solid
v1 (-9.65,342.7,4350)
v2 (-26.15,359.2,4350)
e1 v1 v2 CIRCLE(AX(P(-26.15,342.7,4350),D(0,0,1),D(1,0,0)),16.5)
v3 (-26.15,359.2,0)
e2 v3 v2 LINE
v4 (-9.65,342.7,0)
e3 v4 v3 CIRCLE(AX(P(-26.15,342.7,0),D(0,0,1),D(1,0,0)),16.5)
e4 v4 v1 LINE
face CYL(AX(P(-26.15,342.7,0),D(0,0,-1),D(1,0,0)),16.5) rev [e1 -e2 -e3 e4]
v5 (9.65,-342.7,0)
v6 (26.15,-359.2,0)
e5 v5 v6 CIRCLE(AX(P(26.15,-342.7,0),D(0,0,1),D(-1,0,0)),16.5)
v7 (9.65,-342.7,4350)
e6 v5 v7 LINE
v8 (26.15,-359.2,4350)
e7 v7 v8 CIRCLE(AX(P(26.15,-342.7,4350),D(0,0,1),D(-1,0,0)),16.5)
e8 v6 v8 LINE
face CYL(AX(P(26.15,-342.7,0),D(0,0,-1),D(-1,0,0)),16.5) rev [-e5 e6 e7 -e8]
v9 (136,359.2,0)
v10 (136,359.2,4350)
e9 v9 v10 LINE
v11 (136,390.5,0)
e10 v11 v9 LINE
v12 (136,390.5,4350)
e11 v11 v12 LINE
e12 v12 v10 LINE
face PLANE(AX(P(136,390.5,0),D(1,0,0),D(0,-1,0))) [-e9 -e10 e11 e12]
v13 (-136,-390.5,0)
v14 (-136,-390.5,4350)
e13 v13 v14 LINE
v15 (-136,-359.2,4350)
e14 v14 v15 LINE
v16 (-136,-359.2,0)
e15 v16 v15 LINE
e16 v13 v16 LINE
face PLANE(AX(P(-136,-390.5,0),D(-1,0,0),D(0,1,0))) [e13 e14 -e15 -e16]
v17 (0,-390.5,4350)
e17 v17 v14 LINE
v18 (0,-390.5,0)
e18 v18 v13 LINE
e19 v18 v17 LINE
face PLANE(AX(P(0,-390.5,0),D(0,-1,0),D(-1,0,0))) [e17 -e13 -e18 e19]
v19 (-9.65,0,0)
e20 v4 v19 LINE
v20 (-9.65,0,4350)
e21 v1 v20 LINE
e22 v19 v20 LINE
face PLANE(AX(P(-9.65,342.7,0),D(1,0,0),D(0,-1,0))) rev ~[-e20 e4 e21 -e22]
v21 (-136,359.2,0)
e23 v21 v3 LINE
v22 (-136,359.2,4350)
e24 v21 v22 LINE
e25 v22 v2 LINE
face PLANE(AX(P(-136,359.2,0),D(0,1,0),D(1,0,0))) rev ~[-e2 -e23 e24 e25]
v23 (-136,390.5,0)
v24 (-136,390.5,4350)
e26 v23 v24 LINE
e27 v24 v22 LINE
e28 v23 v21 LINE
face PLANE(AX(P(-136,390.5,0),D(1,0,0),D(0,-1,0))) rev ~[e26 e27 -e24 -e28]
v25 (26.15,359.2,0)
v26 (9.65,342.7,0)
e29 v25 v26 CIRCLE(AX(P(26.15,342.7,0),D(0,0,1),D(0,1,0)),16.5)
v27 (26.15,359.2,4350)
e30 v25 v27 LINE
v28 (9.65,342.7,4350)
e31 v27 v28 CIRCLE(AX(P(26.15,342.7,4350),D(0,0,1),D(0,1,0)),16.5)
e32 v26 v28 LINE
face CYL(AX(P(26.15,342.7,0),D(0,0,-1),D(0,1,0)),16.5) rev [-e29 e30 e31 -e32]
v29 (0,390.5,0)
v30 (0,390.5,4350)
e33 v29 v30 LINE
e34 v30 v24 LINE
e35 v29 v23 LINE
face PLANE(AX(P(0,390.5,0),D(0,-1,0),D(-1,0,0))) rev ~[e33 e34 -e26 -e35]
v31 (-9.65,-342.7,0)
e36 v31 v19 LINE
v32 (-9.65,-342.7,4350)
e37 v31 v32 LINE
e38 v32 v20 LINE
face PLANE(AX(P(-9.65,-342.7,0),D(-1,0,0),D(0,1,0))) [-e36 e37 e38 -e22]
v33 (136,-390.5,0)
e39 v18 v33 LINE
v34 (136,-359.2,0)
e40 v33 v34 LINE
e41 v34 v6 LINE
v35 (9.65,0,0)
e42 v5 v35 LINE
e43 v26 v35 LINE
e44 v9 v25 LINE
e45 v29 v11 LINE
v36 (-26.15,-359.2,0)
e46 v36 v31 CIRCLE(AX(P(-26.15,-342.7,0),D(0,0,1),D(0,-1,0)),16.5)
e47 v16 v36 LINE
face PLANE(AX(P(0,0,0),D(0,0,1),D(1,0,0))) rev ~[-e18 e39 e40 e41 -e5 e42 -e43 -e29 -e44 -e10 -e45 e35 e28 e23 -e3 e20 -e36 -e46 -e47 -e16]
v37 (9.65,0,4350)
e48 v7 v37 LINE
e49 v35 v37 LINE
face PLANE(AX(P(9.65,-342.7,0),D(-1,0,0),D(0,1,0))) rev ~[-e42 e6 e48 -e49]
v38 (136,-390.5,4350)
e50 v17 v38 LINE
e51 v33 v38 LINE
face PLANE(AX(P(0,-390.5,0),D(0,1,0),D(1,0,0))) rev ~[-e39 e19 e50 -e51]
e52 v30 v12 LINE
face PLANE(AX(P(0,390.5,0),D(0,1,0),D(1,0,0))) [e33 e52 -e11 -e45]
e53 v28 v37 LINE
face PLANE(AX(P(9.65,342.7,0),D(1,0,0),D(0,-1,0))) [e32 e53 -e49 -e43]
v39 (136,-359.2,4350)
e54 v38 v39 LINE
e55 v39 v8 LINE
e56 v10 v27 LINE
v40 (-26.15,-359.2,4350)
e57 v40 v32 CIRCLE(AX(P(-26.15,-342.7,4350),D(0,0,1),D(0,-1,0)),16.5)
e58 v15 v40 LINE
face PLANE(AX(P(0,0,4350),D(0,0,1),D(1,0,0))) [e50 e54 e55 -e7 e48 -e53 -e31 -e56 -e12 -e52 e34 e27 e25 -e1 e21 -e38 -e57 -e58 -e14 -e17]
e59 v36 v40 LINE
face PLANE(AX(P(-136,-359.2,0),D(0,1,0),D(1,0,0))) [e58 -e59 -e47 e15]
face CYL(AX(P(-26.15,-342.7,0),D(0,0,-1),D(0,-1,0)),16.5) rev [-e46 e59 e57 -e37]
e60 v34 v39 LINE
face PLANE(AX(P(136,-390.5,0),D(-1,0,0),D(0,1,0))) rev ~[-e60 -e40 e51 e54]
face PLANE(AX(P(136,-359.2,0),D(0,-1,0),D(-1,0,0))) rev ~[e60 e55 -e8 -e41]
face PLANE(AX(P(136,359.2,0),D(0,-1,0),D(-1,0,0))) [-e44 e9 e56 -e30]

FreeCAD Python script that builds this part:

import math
import FreeCAD as App
import Part
import Sketcher
from FreeCAD import Vector
Q = App.Units.Quantity

doc = App.newDocument("Part")
body = doc.addObject("PartDesign::Body", "Body")

sketch1 = doc.addObject("Sketcher::SketchObject", "Sketch")
body.addObject(sketch1)
sketch1.AttachmentSupport = (doc.XY_Plane, [""])
sketch1.MapMode = "FlatFace"
sketch1.addGeometry(Part.LineSegment(Vector(-136, -359, 0), Vector(-136, -390, 0)), False)
sketch1.addGeometry(Part.LineSegment(Vector(-136, -390, 0), Vector(136, -390, 0)), False)
sketch1.addGeometry(Part.LineSegment(Vector(136, -390, 0), Vector(136, -359, 0)), False)
sketch1.addGeometry(Part.LineSegment(Vector(136, -359, 0), Vector(26, -359, 0)), False)
sketch1.addGeometry(Part.ArcOfCircle(Part.Circle(Vector(26, -343, 0), Vector(0, 0, 1), 16), math.radians(180), math.radians(270)), False)
sketch1.addGeometry(Part.LineSegment(Vector(10, -343, 0), Vector(10, 343, 0)), False)
sketch1.addGeometry(Part.ArcOfCircle(Part.Circle(Vector(26, 343, 0), Vector(0, 0, 1), 16), math.radians(90), math.radians(180)), False)
sketch1.addGeometry(Part.LineSegment(Vector(26, 359, 0), Vector(136, 359, 0)), False)
sketch1.addGeometry(Part.LineSegment(Vector(136, 359, 0), Vector(136, 390, 0)), False)
sketch1.addGeometry(Part.LineSegment(Vector(136, 390, 0), Vector(-136, 390, 0)), False)
sketch1.addGeometry(Part.LineSegment(Vector(-136, 390, 0), Vector(-136, 359, 0)), False)
sketch1.addGeometry(Part.LineSegment(Vector(-136, 359, 0), Vector(-26, 359, 0)), False)
sketch1.addGeometry(Part.ArcOfCircle(Part.Circle(Vector(-26, 343, 0), Vector(0, 0, 1), 16), math.radians(0), math.radians(90)), False)
sketch1.addGeometry(Part.LineSegment(Vector(-10, 343, 0), Vector(-10, -343, 0)), False)
sketch1.addGeometry(Part.ArcOfCircle(Part.Circle(Vector(-26, -343, 0), Vector(0, 0, 1), 16), math.radians(-90), math.radians(0)), False)
sketch1.addGeometry(Part.LineSegment(Vector(-26, -359, 0), Vector(-136, -359, 0)), False)
sketch1.addConstraint(Sketcher.Constraint("Coincident", 0, 2, 1, 1))
sketch1.addConstraint(Sketcher.Constraint("Coincident", 1, 2, 2, 1))
sketch1.addConstraint(Sketcher.Constraint("Coincident", 2, 2, 3, 1))
sketch1.addConstraint(Sketcher.Constraint("Tangent", 3, 2, 4, 2))
sketch1.addConstraint(Sketcher.Constraint("Tangent", 4, 1, 5, 1))
sketch1.addConstraint(Sketcher.Constraint("Tangent", 5, 2, 6, 2))
sketch1.addConstraint(Sketcher.Constraint("Tangent", 6, 1, 7, 1))
sketch1.addConstraint(Sketcher.Constraint("Coincident", 7, 2, 8, 1))
sketch1.addConstraint(Sketcher.Constraint("Coincident", 8, 2, 9, 1))
sketch1.addConstraint(Sketcher.Constraint("Coincident", 9, 2, 10, 1))
sketch1.addConstraint(Sketcher.Constraint("Coincident", 10, 2, 11, 1))
sketch1.addConstraint(Sketcher.Constraint("Tangent", 11, 2, 12, 2))
sketch1.addConstraint(Sketcher.Constraint("Tangent", 12, 1, 13, 1))
sketch1.addConstraint(Sketcher.Constraint("Tangent", 13, 2, 14, 2))
sketch1.addConstraint(Sketcher.Constraint("Tangent", 14, 1, 15, 1))
sketch1.addConstraint(Sketcher.Constraint("Coincident", 15, 2, 0, 1))
sketch1.addConstraint(Sketcher.Constraint("Vertical", 0))
sketch1.addConstraint(Sketcher.Constraint("Horizontal", 1))
sketch1.addConstraint(Sketcher.Constraint("Vertical", 2))
sketch1.addConstraint(Sketcher.Constraint("Horizontal", 3))
sketch1.addConstraint(Sketcher.Constraint("Vertical", 5))
sketch1.addConstraint(Sketcher.Constraint("Horizontal", 7))
sketch1.addConstraint(Sketcher.Constraint("Vertical", 8))
sketch1.addConstraint(Sketcher.Constraint("Horizontal", 9))
sketch1.addConstraint(Sketcher.Constraint("Vertical", 10))
sketch1.addConstraint(Sketcher.Constraint("Horizontal", 11))
sketch1.addConstraint(Sketcher.Constraint("Vertical", 13))
sketch1.addConstraint(Sketcher.Constraint("Horizontal", 15))
sketch1.addConstraint(Sketcher.Constraint("Equal", 4, 6))
sketch1.addConstraint(Sketcher.Constraint("Equal", 6, 12))
sketch1.addConstraint(Sketcher.Constraint("Equal", 12, 14))
sketch1.addConstraint(Sketcher.Constraint("Symmetric", 4, 3, 12, 3, -1, 1))
sketch1.addConstraint(Sketcher.Constraint("Symmetric", 0, 2, 8, 2, -1, 1))
sketch1.addConstraint(Sketcher.Constraint("Symmetric", 7, 2, 10, 2, -2))
sketch1.addConstraint(Sketcher.Constraint("Symmetric", 2, 2, 15, 2, -2))
sketch1.addConstraint(Sketcher.Constraint("Radius", 4, Q("16.5 mm")))
sketch1.addConstraint(Sketcher.Constraint("DistanceY", 0, 2, 0, 1, Q("31.3 mm")))
sketch1.addConstraint(Sketcher.Constraint("DistanceX", 0, 2, -1, 1, Q("136 mm")))
sketch1.addConstraint(Sketcher.Constraint("DistanceY", 0, 2, -1, 1, Q("390.5 mm")))
sketch1.addConstraint(Sketcher.Constraint("DistanceX", -1, 1, 4, 1, Q("9.65 mm")))
pad1 = doc.addObject("PartDesign::Pad", "Pad")
body.addObject(pad1)
pad1.Profile = sketch1
pad1.Length = 4350

doc.recompute()
